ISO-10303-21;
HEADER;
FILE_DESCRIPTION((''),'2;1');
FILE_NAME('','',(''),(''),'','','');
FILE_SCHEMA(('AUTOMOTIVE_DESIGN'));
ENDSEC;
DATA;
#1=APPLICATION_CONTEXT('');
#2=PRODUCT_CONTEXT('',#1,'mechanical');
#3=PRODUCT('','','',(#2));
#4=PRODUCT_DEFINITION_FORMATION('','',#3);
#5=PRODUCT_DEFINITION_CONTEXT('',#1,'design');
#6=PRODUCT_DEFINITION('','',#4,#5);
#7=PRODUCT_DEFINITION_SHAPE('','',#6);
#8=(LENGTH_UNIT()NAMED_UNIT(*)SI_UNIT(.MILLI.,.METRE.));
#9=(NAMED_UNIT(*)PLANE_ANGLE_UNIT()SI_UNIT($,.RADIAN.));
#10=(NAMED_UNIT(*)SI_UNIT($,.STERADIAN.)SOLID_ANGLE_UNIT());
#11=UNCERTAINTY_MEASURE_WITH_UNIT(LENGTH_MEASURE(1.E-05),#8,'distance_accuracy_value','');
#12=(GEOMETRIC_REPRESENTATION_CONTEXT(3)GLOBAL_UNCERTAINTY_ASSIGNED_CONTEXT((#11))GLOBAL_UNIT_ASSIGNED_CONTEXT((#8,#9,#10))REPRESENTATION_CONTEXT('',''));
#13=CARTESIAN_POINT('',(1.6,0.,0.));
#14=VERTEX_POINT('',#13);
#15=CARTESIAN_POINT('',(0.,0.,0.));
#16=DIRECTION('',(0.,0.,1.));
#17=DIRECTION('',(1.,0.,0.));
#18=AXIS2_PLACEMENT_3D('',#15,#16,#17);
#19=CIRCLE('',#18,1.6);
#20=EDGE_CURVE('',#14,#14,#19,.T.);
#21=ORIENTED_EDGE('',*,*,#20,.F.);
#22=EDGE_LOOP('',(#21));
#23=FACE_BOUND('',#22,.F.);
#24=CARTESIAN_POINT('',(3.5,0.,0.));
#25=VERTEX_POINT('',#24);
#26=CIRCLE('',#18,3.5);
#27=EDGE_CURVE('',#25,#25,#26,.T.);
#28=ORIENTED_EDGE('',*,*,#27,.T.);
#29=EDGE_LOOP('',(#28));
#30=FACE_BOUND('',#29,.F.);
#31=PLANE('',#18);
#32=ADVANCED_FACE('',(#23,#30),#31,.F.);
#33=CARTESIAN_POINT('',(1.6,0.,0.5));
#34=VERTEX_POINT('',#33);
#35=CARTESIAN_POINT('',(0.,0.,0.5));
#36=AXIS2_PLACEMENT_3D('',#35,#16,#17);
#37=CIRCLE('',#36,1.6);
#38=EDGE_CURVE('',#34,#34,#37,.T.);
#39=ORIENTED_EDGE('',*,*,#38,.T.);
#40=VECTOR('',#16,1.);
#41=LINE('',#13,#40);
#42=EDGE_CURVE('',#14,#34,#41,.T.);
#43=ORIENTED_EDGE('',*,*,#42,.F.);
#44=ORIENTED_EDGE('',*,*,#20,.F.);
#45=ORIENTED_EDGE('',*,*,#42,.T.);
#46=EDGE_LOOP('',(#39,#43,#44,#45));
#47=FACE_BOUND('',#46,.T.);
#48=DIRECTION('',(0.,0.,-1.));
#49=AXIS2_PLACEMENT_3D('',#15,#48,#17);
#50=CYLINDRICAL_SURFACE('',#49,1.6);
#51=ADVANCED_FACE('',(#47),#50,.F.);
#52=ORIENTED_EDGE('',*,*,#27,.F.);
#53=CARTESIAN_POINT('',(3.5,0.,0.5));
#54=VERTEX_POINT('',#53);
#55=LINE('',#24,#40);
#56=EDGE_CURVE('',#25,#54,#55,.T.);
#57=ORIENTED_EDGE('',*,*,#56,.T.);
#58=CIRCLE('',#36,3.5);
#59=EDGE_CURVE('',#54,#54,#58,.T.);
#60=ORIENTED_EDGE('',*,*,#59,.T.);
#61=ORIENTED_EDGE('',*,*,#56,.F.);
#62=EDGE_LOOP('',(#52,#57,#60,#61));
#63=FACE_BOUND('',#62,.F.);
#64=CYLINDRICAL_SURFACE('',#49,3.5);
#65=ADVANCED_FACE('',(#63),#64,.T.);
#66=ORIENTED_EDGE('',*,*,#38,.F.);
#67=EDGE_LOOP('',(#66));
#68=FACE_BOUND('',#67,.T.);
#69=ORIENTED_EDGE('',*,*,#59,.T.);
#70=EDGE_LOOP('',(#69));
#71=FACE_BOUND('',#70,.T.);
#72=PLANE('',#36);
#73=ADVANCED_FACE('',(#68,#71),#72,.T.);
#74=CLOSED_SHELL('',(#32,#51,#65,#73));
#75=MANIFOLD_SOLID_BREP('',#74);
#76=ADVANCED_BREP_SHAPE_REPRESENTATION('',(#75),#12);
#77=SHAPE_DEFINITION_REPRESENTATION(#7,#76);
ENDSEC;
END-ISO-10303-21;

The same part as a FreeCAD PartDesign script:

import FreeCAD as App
import Part
import Sketcher
from FreeCAD import Vector
Q = App.Units.Quantity

doc = App.newDocument("Part")
params = doc.addObject("Spreadsheet::Sheet", "Params")
for row, (alias, value) in enumerate([
    ("sketch1_diameter", "7 mm"),
    ("sketch1_diameter2", "3.2 mm"),
    ("pad1_length", "0.5 mm"),
], start=1):
    params.set(f"A{row}", alias)
    params.set(f"B{row}", "=" + value)
    params.setAlias(f"B{row}", alias)

body = doc.addObject("PartDesign::Body", "Body")

sketch1 = doc.addObject("Sketcher::SketchObject", "Sketch")
body.addObject(sketch1)
sketch1.AttachmentSupport = (doc.XY_Plane, [""])
sketch1.MapMode = "FlatFace"
sketch1.addGeometry([
    Part.Circle(Vector(0, 0, 0), Vector(0, 0, 1), 3.5),
    Part.Circle(Vector(0, 0, 0), Vector(0, 0, 1), 1.6),
], False)
sketch1.addConstraint([
    Sketcher.Constraint("Coincident", 0, 3, -1, 1),
    Sketcher.Constraint("Coincident", 1, 3, -1, 1),
    Sketcher.Constraint("Diameter", 0, Q("7 mm")),
    Sketcher.Constraint("Diameter", 1, Q("3.2 mm")),
])
sketch1.setExpression("Constraints[2]", "Params.sketch1_diameter")
sketch1.setExpression("Constraints[3]", "Params.sketch1_diameter2")
pad1 = doc.addObject("PartDesign::Pad", "Pad")
body.addObject(pad1)
pad1.Profile = sketch1
pad1.setExpression("Length", "Params.pad1_length")

doc.recompute()
